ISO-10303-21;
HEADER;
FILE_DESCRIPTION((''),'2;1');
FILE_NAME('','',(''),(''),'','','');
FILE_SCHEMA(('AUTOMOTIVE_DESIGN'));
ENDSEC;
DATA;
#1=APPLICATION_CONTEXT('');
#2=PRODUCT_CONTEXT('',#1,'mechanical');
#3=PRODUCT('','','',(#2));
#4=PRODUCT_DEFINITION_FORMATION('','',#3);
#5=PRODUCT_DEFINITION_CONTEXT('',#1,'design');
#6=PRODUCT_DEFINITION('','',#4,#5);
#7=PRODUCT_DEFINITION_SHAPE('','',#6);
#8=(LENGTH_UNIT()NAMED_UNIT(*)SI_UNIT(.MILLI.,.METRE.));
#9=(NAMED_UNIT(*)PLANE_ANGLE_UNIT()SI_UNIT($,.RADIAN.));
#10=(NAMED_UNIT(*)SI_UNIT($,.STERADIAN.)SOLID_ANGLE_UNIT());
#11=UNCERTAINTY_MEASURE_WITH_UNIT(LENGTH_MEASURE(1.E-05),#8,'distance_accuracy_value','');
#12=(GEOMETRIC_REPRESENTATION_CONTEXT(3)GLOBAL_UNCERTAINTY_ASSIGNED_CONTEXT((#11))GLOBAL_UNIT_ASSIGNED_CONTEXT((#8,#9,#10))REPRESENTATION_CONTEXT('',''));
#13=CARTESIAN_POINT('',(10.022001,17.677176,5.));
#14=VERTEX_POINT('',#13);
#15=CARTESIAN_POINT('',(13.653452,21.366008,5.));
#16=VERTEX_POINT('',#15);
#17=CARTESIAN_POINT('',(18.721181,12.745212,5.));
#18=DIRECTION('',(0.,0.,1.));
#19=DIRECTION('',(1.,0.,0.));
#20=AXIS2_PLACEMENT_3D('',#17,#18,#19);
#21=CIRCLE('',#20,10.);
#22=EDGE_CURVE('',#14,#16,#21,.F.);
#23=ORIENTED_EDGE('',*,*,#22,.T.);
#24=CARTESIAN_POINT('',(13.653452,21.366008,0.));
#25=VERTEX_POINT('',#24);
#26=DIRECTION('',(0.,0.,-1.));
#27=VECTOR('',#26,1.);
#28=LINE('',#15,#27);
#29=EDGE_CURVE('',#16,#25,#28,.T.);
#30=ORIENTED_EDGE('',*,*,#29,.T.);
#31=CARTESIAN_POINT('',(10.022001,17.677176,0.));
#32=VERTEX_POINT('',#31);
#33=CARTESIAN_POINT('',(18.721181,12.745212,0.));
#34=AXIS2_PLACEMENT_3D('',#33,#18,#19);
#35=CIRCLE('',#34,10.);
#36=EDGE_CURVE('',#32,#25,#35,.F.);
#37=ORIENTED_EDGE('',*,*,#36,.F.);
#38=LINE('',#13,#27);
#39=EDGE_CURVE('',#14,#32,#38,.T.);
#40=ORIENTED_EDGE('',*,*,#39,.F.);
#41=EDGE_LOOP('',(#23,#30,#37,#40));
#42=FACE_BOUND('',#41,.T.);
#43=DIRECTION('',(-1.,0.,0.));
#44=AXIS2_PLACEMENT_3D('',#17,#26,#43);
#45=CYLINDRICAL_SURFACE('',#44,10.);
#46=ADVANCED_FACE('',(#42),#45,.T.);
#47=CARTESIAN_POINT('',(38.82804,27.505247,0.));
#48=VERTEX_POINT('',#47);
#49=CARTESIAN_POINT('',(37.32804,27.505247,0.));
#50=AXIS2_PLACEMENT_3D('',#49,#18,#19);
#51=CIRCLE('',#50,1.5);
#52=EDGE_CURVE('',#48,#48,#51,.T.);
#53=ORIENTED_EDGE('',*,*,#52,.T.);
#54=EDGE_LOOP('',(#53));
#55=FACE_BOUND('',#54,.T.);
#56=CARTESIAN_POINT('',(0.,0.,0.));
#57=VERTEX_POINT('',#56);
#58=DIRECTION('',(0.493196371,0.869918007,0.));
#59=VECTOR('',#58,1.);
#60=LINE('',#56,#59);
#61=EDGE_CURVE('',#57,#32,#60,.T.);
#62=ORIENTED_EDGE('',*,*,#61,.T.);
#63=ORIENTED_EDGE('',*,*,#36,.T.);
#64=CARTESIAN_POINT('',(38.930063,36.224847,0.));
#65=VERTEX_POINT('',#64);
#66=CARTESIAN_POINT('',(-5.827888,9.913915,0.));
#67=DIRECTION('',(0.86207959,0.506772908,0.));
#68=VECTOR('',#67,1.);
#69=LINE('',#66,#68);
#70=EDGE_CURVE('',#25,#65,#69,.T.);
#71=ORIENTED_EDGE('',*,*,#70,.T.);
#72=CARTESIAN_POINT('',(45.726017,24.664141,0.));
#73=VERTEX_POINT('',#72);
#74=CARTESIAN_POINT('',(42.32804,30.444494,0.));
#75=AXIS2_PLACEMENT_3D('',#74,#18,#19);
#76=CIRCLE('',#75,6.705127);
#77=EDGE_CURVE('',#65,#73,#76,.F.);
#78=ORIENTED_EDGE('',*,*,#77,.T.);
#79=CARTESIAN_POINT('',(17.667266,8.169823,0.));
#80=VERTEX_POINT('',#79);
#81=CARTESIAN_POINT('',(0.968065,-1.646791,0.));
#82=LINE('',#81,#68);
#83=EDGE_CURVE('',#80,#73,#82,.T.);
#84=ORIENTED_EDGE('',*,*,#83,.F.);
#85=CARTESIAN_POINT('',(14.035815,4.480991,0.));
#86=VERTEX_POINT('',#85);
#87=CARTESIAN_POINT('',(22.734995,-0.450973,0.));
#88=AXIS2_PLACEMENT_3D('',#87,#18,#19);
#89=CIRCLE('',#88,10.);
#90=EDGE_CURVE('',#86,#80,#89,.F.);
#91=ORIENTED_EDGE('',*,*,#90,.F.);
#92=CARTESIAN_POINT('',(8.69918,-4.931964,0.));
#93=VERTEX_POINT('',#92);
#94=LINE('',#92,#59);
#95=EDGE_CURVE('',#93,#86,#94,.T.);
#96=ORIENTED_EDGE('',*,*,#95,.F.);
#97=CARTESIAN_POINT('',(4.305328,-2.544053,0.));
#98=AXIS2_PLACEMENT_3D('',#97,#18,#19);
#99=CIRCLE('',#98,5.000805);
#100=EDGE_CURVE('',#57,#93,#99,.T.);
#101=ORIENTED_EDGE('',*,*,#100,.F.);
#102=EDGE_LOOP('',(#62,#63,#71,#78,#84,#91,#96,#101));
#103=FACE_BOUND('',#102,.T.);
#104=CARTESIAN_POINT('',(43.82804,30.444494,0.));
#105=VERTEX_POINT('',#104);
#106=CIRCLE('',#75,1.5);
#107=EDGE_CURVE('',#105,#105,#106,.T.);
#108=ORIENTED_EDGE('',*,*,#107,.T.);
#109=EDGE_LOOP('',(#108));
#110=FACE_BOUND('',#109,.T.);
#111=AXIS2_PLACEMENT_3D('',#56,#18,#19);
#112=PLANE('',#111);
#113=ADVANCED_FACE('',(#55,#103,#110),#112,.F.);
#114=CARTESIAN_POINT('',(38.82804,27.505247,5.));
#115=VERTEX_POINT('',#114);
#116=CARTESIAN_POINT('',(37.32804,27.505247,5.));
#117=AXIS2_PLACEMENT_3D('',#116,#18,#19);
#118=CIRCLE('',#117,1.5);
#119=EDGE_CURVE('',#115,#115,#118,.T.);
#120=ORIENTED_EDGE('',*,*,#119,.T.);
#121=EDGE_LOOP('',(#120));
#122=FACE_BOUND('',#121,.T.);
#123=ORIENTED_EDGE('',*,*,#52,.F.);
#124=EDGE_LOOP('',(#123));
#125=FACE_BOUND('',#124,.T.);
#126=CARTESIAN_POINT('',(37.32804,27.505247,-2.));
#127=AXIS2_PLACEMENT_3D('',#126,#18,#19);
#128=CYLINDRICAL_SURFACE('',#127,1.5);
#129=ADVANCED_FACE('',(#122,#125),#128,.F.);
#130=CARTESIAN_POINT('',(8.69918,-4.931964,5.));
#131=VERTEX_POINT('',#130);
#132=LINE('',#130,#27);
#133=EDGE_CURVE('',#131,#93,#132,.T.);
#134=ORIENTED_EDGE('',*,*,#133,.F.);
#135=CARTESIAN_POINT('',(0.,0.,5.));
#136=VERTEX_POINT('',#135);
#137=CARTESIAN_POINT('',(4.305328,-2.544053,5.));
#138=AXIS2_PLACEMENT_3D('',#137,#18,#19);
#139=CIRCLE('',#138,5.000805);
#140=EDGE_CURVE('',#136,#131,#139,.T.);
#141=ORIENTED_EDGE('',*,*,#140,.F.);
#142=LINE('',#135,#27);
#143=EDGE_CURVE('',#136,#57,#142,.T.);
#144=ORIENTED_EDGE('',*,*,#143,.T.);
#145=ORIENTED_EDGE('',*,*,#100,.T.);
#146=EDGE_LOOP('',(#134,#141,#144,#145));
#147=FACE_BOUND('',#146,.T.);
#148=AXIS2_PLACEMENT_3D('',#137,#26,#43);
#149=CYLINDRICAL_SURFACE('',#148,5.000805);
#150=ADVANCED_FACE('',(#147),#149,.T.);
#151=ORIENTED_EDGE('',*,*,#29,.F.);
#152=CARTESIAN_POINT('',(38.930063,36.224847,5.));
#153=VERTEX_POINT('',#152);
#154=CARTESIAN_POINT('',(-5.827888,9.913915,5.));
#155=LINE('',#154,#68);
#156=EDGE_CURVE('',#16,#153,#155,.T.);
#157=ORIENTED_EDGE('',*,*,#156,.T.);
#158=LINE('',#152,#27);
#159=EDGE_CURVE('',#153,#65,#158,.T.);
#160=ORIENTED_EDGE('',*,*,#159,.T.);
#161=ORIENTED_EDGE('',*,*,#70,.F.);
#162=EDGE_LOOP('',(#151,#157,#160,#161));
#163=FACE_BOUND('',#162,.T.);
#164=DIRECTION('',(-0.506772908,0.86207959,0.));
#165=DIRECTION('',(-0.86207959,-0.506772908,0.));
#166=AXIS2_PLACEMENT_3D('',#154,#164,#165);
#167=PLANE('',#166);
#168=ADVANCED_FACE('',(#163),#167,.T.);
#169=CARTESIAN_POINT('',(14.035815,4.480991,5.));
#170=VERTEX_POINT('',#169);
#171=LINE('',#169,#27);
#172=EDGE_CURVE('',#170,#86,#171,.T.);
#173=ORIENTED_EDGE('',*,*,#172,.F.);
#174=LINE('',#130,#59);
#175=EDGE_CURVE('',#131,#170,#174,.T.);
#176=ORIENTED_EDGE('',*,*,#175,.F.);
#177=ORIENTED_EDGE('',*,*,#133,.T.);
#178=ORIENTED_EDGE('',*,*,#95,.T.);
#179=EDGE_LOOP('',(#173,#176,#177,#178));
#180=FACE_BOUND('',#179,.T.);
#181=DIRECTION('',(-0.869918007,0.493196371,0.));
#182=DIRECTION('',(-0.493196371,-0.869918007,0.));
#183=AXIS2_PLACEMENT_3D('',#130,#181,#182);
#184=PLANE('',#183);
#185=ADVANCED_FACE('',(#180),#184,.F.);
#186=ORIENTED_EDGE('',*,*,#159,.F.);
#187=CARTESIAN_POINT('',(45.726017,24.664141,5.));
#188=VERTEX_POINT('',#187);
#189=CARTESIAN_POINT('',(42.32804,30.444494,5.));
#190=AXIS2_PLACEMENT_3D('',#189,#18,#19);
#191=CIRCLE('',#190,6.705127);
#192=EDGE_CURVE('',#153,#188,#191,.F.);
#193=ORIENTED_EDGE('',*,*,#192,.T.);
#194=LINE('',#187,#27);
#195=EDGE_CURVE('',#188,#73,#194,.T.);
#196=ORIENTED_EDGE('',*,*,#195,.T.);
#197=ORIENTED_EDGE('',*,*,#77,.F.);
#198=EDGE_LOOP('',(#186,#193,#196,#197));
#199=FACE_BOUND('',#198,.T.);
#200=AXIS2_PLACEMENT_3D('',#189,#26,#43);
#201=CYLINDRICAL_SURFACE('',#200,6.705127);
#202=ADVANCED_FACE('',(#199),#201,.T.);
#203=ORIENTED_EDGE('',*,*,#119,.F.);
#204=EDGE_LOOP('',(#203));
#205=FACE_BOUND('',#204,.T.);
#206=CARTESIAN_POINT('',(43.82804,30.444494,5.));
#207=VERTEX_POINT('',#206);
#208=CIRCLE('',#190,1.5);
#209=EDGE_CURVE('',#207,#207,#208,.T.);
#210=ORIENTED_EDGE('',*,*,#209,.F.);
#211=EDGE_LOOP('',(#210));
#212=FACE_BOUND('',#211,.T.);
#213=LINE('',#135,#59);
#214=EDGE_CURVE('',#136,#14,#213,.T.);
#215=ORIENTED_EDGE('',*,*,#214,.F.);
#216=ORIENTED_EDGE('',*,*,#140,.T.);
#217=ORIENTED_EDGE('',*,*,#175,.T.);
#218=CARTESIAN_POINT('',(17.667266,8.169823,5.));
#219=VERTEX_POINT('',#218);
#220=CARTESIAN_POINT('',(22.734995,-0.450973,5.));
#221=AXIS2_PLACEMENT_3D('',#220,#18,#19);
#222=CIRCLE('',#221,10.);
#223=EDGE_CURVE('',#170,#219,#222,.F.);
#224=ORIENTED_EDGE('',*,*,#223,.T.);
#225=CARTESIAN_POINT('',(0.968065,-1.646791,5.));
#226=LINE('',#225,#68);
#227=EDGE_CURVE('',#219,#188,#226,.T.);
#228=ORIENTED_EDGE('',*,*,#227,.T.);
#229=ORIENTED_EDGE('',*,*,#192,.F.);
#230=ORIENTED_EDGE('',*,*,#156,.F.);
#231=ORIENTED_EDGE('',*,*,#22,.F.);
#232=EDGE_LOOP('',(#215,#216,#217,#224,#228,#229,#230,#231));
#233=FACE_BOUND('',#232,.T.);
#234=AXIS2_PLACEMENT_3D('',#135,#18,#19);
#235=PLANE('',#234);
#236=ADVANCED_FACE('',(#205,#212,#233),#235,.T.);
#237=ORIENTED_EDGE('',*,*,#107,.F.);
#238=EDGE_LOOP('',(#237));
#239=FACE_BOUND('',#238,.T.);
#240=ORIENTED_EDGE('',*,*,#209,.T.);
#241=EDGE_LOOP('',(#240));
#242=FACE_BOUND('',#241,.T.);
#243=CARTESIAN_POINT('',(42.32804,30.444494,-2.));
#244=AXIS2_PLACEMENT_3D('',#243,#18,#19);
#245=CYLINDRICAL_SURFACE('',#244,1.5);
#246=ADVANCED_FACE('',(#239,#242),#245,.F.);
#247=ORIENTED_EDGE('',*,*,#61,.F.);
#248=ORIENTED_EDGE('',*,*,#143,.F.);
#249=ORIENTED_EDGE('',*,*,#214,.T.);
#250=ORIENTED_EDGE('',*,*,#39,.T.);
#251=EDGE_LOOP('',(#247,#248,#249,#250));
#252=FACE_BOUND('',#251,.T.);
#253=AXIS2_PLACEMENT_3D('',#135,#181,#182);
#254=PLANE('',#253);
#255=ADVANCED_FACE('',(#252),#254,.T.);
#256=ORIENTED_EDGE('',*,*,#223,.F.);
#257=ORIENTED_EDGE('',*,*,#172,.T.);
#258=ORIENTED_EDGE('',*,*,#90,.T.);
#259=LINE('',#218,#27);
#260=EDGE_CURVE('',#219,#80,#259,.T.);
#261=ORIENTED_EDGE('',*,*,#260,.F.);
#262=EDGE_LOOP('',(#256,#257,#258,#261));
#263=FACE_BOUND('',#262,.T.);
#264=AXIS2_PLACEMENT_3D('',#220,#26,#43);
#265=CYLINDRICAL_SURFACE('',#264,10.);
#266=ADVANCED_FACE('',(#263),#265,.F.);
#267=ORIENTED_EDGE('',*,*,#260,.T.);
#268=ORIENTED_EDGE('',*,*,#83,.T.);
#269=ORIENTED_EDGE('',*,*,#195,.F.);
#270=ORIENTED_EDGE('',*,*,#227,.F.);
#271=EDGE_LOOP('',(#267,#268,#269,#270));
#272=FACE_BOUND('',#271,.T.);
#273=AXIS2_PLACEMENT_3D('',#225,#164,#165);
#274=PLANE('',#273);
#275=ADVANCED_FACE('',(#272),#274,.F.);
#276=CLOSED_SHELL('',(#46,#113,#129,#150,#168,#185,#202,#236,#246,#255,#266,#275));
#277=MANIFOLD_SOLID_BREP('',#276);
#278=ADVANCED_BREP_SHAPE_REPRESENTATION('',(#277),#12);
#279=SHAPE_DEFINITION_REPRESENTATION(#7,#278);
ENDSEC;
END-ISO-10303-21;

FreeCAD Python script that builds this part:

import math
import FreeCAD as App
import Part
import Sketcher
from FreeCAD import Vector

doc = App.newDocument("Part")
body = doc.addObject("PartDesign::Body", "Body")

sketch1 = doc.addObject("Sketcher::SketchObject", "Sketch")
body.addObject(sketch1)
sketch1.AttachmentSupport = (doc.XY_Plane, [""])
sketch1.MapMode = "FlatFace"
sketch1.addGeometry([
    Part.LineSegment(Vector(10.022001, 17.677176, 0), Vector(0, 0, 0)),
    Part.ArcOfCircle(Part.Circle(Vector(4.305328, -2.544053, 0), Vector(0, 0, 1), 5.000805), math.radians(149.42081), math.radians(331.477415)),
    Part.LineSegment(Vector(8.69918, -4.931964, 0), Vector(14.035815, 4.480991, 0)),
    Part.ArcOfCircle(Part.Circle(Vector(22.734995, -0.450973, 0), Vector(0, 0, 1), 10), math.radians(120.449113), math.radians(150.449113)),
    Part.LineSegment(Vector(17.667266, 8.169823, 0), Vector(45.726017, 24.664141, 0)),
    Part.ArcOfCircle(Part.Circle(Vector(42.32804, 30.444494, 0), Vector(0, 0, 1), 6.705127), math.radians(-59.550887), math.radians(120.449113)),
    Part.LineSegment(Vector(38.930063, 36.224847, 0), Vector(13.653452, 21.366008, 0)),
    Part.ArcOfCircle(Part.Circle(Vector(18.721181, 12.745212, 0), Vector(0, 0, 1), 10), math.radians(120.449113), math.radians(150.449113)),
], False)
sketch1.addConstraint([
    Sketcher.Constraint("Coincident", 0, 2, 1, 1),
    Sketcher.Constraint("Coincident", 1, 2, 2, 1),
    Sketcher.Constraint("Coincident", 2, 2, 3, 2),
    Sketcher.Constraint("Coincident", 3, 1, 4, 1),
    Sketcher.Constraint("Coincident", 4, 2, 5, 1),
    Sketcher.Constraint("Coincident", 5, 2, 6, 1),
    Sketcher.Constraint("Coincident", 6, 2, 7, 1),
    Sketcher.Constraint("Coincident", 7, 2, 0, 1),
    Sketcher.Constraint("Coincident", 0, 2, -1, 1),
    Sketcher.Constraint("Radius", 3, 10.0),
    Sketcher.Constraint("Radius", 7, 10.0),
    Sketcher.Constraint("DistanceX", -1, 1, 7, 2, 10.022001),
    Sketcher.Constraint("Radius", 1, 5.000805),
    Sketcher.Constraint("Radius", 5, 6.705127),
    Sketcher.Constraint("DistanceX", 1, 2, 7, 3, 10.022001),
    Sketcher.Constraint("DistanceX", 2, 2, 4, 2, 31.690201),
    Sketcher.Constraint("Distance", 0, 20.320508),
    Sketcher.Constraint("Distance", 2, 10.820508),
    Sketcher.Constraint("Distance", 4, 32.547749),
    Sketcher.Constraint("Distance", 6, 29.320508),
    Sketcher.Constraint("DistanceX", -1, 1, 5, 3, 42.32804),
    Sketcher.Constraint("DistanceX", -1, 1, 7, 3, 18.721181),
    Sketcher.Constraint("DistanceY", -1, 1, 2, 2, 4.480991),
    Sketcher.Constraint("DistanceY", -1, 1, 4, 2, 24.664141),
    Sketcher.Constraint("DistanceX", -1, 1, 6, 2, 13.653452),
    Sketcher.Constraint("DistanceY", 1, 3, 3, 3, 2.093081),
    Sketcher.Constraint("DistanceY", 7, 3, 5, 3, 17.699282),
])
pad1 = doc.addObject("PartDesign::Pad", "Pad")
body.addObject(pad1)
pad1.Profile = sketch1
pad1.Length = 5

sketch2 = doc.addObject("Sketcher::SketchObject", "Sketch001")
body.addObject(sketch2)
sketch2.AttachmentSupport = (doc.XY_Plane, [""])
sketch2.MapMode = "FlatFace"
sketch2.AttachmentOffset = App.Placement(Vector(0, 0, 5), App.Rotation())
sketch2.addGeometry([
    Part.Circle(Vector(42.3, 30.4, 0), Vector(0, 0, 1), 1.5),
    Part.Circle(Vector(37.3, 27.5, 0), Vector(0, 0, 1), 1.5),
], False)
sketch2.addConstraint([
    Sketcher.Constraint("Equal", 0, 1),
    Sketcher.Constraint("Diameter", 0, 3.0),
    Sketcher.Constraint("DistanceX", 1, 3, 0, 3, 5.0),
    Sketcher.Constraint("DistanceX", -1, 1, 0, 3, 42.32804),
    Sketcher.Constraint("DistanceY", -1, 1, 0, 3, 30.444494),
    Sketcher.Constraint("DistanceY", -1, 1, 1, 3, 27.505247),
])
pocket1 = doc.addObject("PartDesign::Pocket", "Pocket")
body.addObject(pocket1)
pocket1.Profile = sketch2
pocket1.Length = 7

doc.recompute()
